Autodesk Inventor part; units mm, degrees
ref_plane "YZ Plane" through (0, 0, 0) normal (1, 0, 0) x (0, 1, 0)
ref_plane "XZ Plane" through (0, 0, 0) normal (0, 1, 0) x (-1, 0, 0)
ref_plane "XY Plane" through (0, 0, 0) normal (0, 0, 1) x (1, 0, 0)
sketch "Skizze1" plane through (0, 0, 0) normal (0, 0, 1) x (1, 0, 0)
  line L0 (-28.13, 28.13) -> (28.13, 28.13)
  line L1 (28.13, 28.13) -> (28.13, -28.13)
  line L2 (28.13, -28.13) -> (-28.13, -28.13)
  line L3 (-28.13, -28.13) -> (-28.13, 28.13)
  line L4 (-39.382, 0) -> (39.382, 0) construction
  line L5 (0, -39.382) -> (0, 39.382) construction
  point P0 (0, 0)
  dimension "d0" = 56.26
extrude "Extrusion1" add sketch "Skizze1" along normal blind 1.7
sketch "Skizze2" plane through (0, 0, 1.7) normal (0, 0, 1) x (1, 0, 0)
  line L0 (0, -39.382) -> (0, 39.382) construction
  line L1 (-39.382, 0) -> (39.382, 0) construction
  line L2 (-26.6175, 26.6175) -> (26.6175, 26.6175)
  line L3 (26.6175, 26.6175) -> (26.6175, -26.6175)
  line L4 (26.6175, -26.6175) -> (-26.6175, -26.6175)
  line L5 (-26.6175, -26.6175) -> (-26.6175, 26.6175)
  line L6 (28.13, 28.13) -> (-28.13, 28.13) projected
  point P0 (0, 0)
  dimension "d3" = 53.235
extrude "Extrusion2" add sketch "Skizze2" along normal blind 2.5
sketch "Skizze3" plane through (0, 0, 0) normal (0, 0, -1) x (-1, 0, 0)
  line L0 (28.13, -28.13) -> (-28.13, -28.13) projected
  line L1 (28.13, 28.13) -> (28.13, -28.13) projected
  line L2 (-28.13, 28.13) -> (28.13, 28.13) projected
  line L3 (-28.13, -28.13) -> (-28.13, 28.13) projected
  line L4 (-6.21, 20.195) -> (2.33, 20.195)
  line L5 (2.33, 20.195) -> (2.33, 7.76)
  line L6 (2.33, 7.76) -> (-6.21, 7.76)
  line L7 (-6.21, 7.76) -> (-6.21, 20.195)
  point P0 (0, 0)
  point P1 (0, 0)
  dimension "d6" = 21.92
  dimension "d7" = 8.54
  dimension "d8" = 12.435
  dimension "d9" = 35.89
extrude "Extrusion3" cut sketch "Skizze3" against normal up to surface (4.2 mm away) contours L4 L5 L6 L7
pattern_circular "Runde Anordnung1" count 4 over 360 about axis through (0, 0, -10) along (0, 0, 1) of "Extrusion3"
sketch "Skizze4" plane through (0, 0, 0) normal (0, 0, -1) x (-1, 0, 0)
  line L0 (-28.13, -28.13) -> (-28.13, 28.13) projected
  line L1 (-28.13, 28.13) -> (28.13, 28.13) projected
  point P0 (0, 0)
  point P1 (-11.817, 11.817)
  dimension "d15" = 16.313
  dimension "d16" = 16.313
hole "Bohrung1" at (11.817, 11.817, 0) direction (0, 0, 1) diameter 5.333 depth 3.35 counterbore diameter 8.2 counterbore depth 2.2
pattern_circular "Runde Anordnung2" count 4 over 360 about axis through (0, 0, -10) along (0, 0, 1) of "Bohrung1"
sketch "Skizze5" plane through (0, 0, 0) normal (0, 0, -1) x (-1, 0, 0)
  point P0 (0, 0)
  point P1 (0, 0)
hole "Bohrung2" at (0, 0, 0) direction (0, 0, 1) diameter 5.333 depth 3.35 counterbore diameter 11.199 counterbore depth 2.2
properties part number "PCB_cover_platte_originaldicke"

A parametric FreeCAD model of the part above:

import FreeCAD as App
import Part
import Sketcher
Q = App.Units.Quantity

doc = App.newDocument("Part")
body = doc.addObject("PartDesign::Body", "Body")

# Sketch on XY plane
sketch1 = body.newObject("Sketcher::SketchObject", "Sketch")
sketch1.AttachmentSupport = (doc.getObject("XY_Plane"), [""])
sketch1.MapMode = "FlatFace"
sketch1.addGeometry([
    Part.LineSegment(App.Vector(28, 28, 0), App.Vector(-28, 28, 0)),
    Part.LineSegment(App.Vector(-28, 28, 0), App.Vector(-28, -28, 0)),
    Part.LineSegment(App.Vector(-28, -28, 0), App.Vector(28, -28, 0)),
    Part.LineSegment(App.Vector(28, -28, 0), App.Vector(28, 28, 0)),
], False)
sketch1.addConstraint([
    Sketcher.Constraint("Coincident", 0, 2, 1, 1),
    Sketcher.Constraint("Coincident", 1, 2, 2, 1),
    Sketcher.Constraint("Coincident", 2, 2, 3, 1),
    Sketcher.Constraint("Coincident", 3, 2, 0, 1),
    Sketcher.Constraint("Horizontal", 0),
    Sketcher.Constraint("Vertical", 1),
    Sketcher.Constraint("Horizontal", 2),
    Sketcher.Constraint("Vertical", 3),
    Sketcher.Constraint("Symmetric", 0, 2, 2, 2, -1, 1),
    Sketcher.Constraint("Equal", 2, 1),
    Sketcher.Constraint("DistanceX", 0, 2, 0, 1, Q("56.26 mm")),
])
pad1 = body.newObject("PartDesign::Pad", "Pad")
pad1.Profile = sketch1
pad1.Length = 1.7

# Sketch on XY plane
sketch2 = body.newObject("Sketcher::SketchObject", "Sketch001")
sketch2.AttachmentSupport = (doc.getObject("XY_Plane"), [""])
sketch2.MapMode = "FlatFace"
sketch2.AttachmentOffset = App.Placement(App.Vector(0, 0, 1.7), App.Rotation())
sketch2.addGeometry([
    Part.LineSegment(App.Vector(27, 27, 0), App.Vector(-27, 27, 0)),
    Part.LineSegment(App.Vector(-27, 27, 0), App.Vector(-27, -27, 0)),
    Part.LineSegment(App.Vector(-27, -27, 0), App.Vector(27, -27, 0)),
    Part.LineSegment(App.Vector(27, -27, 0), App.Vector(27, 27, 0)),
], False)
sketch2.addConstraint([
    Sketcher.Constraint("Coincident", 0, 2, 1, 1),
    Sketcher.Constraint("Coincident", 1, 2, 2, 1),
    Sketcher.Constraint("Coincident", 2, 2, 3, 1),
    Sketcher.Constraint("Coincident", 3, 2, 0, 1),
    Sketcher.Constraint("Horizontal", 0),
    Sketcher.Constraint("Vertical", 1),
    Sketcher.Constraint("Horizontal", 2),
    Sketcher.Constraint("Vertical", 3),
    Sketcher.Constraint("Symmetric", 0, 2, 2, 2, -1, 1),
    Sketcher.Constraint("Equal", 2, 1),
    Sketcher.Constraint("DistanceX", 0, 2, 0, 1, Q("53.235 mm")),
])
pad2 = body.newObject("PartDesign::Pad", "Pad001")
pad2.Profile = sketch2
pad2.Length = 2.5

# Sketch on XY plane
sketch3 = body.newObject("Sketcher::SketchObject", "Sketch002")
sketch3.AttachmentSupport = (doc.getObject("XY_Plane"), [""])
sketch3.MapMode = "FlatFace"
sketch3.addGeometry([
    Part.LineSegment(App.Vector(-2, 20, 0), App.Vector(6, 20, 0)),
    Part.LineSegment(App.Vector(6, 20, 0), App.Vector(6, 8, 0)),
    Part.LineSegment(App.Vector(6, 8, 0), App.Vector(-2, 8, 0)),
    Part.LineSegment(App.Vector(-2, 8, 0), App.Vector(-2, 20, 0)),
], False)
sketch3.addConstraint([
    Sketcher.Constraint("Coincident", 0, 2, 1, 1),
    Sketcher.Constraint("Coincident", 1, 2, 2, 1),
    Sketcher.Constraint("Coincident", 2, 2, 3, 1),
    Sketcher.Constraint("Coincident", 3, 2, 0, 1),
    Sketcher.Constraint("Horizontal", 0),
    Sketcher.Constraint("Vertical", 1),
    Sketcher.Constraint("Horizontal", 2),
    Sketcher.Constraint("Vertical", 3),
    Sketcher.Constraint("DistanceX", 0, 1, 0, 2, Q("8.54 mm")),
    Sketcher.Constraint("DistanceY", 1, 2, 1, 1, Q("12.435 mm")),
    Sketcher.Constraint("DistanceX", -1, 1, 0, 2, Q("6.21 mm")),
    Sketcher.Constraint("DistanceY", -1, 1, 1, 2, Q("7.76 mm")),
])
pocket1 = body.newObject("PartDesign::Pocket", "Pocket")
pocket1.Profile = sketch3
pocket1.Length = 4.2
pocket1.Reversed = True
doc.recompute()

polarpattern = body.newObject("PartDesign::PolarPattern", "PolarPattern")
polarpattern.Originals = [pocket1]
polarpattern.Axis = (doc.getObject("Z_Axis"), [""])
polarpattern.Angle = 360
polarpattern.Occurrences = 4
body.Tip = polarpattern

# Sketch on XY plane
sketch4 = body.newObject("Sketcher::SketchObject", "Sketch003")
sketch4.AttachmentSupport = (doc.getObject("XY_Plane"), [""])
sketch4.MapMode = "FlatFace"
sketch4.addGeometry(Part.Circle(App.Vector(11.8, 11.8, 0), App.Vector(0, 0, 1), 2.7), False)
sketch4.addConstraint([
    Sketcher.Constraint("Diameter", 0, Q("5.333 mm")),
    Sketcher.Constraint("DistanceX", -1, 1, 0, 3, Q("11.817 mm")),
    Sketcher.Constraint("DistanceY", -1, 1, 0, 3, Q("11.817 mm")),
])
doc.recompute()
hole = body.newObject("PartDesign::Hole", "Hole")
hole.Profile = sketch4
hole.ThreadType = "None"
hole.Diameter = 5.333
hole.DepthType = "Dimension"
hole.Depth = 3.35
hole.DrillPoint = "Flat"
hole.HoleCutType = "Counterbore"
hole.HoleCutDiameter = 8.2
hole.HoleCutDepth = 2.2
hole.Reversed = True
doc.recompute()

polarpattern2 = body.newObject("PartDesign::PolarPattern", "PolarPattern001")
polarpattern2.Originals = [hole]
polarpattern2.Axis = (doc.getObject("Z_Axis"), [""])
polarpattern2.Angle = 360
polarpattern2.Occurrences = 4
body.Tip = polarpattern2

# Sketch on XY plane
sketch5 = body.newObject("Sketcher::SketchObject", "Sketch004")
sketch5.AttachmentSupport = (doc.getObject("XY_Plane"), [""])
sketch5.MapMode = "FlatFace"
sketch5.addGeometry(Part.Circle(App.Vector(0, 0, 0), App.Vector(0, 0, 1), 2.7), False)
sketch5.addConstraint([
    Sketcher.Constraint("Coincident", 0, 3, -1, 1),
    Sketcher.Constraint("Diameter", 0, Q("5.333 mm")),
])
doc.recompute()
hole2 = body.newObject("PartDesign::Hole", "Hole001")
hole2.Profile = sketch5
hole2.ThreadType = "None"
hole2.Diameter = 5.333
hole2.DepthType = "Dimension"
hole2.Depth = 3.35
hole2.DrillPoint = "Flat"
hole2.HoleCutType = "Counterbore"
hole2.HoleCutDiameter = 11.199
hole2.HoleCutDepth = 2.2
hole2.Reversed = True

doc.recompute()
